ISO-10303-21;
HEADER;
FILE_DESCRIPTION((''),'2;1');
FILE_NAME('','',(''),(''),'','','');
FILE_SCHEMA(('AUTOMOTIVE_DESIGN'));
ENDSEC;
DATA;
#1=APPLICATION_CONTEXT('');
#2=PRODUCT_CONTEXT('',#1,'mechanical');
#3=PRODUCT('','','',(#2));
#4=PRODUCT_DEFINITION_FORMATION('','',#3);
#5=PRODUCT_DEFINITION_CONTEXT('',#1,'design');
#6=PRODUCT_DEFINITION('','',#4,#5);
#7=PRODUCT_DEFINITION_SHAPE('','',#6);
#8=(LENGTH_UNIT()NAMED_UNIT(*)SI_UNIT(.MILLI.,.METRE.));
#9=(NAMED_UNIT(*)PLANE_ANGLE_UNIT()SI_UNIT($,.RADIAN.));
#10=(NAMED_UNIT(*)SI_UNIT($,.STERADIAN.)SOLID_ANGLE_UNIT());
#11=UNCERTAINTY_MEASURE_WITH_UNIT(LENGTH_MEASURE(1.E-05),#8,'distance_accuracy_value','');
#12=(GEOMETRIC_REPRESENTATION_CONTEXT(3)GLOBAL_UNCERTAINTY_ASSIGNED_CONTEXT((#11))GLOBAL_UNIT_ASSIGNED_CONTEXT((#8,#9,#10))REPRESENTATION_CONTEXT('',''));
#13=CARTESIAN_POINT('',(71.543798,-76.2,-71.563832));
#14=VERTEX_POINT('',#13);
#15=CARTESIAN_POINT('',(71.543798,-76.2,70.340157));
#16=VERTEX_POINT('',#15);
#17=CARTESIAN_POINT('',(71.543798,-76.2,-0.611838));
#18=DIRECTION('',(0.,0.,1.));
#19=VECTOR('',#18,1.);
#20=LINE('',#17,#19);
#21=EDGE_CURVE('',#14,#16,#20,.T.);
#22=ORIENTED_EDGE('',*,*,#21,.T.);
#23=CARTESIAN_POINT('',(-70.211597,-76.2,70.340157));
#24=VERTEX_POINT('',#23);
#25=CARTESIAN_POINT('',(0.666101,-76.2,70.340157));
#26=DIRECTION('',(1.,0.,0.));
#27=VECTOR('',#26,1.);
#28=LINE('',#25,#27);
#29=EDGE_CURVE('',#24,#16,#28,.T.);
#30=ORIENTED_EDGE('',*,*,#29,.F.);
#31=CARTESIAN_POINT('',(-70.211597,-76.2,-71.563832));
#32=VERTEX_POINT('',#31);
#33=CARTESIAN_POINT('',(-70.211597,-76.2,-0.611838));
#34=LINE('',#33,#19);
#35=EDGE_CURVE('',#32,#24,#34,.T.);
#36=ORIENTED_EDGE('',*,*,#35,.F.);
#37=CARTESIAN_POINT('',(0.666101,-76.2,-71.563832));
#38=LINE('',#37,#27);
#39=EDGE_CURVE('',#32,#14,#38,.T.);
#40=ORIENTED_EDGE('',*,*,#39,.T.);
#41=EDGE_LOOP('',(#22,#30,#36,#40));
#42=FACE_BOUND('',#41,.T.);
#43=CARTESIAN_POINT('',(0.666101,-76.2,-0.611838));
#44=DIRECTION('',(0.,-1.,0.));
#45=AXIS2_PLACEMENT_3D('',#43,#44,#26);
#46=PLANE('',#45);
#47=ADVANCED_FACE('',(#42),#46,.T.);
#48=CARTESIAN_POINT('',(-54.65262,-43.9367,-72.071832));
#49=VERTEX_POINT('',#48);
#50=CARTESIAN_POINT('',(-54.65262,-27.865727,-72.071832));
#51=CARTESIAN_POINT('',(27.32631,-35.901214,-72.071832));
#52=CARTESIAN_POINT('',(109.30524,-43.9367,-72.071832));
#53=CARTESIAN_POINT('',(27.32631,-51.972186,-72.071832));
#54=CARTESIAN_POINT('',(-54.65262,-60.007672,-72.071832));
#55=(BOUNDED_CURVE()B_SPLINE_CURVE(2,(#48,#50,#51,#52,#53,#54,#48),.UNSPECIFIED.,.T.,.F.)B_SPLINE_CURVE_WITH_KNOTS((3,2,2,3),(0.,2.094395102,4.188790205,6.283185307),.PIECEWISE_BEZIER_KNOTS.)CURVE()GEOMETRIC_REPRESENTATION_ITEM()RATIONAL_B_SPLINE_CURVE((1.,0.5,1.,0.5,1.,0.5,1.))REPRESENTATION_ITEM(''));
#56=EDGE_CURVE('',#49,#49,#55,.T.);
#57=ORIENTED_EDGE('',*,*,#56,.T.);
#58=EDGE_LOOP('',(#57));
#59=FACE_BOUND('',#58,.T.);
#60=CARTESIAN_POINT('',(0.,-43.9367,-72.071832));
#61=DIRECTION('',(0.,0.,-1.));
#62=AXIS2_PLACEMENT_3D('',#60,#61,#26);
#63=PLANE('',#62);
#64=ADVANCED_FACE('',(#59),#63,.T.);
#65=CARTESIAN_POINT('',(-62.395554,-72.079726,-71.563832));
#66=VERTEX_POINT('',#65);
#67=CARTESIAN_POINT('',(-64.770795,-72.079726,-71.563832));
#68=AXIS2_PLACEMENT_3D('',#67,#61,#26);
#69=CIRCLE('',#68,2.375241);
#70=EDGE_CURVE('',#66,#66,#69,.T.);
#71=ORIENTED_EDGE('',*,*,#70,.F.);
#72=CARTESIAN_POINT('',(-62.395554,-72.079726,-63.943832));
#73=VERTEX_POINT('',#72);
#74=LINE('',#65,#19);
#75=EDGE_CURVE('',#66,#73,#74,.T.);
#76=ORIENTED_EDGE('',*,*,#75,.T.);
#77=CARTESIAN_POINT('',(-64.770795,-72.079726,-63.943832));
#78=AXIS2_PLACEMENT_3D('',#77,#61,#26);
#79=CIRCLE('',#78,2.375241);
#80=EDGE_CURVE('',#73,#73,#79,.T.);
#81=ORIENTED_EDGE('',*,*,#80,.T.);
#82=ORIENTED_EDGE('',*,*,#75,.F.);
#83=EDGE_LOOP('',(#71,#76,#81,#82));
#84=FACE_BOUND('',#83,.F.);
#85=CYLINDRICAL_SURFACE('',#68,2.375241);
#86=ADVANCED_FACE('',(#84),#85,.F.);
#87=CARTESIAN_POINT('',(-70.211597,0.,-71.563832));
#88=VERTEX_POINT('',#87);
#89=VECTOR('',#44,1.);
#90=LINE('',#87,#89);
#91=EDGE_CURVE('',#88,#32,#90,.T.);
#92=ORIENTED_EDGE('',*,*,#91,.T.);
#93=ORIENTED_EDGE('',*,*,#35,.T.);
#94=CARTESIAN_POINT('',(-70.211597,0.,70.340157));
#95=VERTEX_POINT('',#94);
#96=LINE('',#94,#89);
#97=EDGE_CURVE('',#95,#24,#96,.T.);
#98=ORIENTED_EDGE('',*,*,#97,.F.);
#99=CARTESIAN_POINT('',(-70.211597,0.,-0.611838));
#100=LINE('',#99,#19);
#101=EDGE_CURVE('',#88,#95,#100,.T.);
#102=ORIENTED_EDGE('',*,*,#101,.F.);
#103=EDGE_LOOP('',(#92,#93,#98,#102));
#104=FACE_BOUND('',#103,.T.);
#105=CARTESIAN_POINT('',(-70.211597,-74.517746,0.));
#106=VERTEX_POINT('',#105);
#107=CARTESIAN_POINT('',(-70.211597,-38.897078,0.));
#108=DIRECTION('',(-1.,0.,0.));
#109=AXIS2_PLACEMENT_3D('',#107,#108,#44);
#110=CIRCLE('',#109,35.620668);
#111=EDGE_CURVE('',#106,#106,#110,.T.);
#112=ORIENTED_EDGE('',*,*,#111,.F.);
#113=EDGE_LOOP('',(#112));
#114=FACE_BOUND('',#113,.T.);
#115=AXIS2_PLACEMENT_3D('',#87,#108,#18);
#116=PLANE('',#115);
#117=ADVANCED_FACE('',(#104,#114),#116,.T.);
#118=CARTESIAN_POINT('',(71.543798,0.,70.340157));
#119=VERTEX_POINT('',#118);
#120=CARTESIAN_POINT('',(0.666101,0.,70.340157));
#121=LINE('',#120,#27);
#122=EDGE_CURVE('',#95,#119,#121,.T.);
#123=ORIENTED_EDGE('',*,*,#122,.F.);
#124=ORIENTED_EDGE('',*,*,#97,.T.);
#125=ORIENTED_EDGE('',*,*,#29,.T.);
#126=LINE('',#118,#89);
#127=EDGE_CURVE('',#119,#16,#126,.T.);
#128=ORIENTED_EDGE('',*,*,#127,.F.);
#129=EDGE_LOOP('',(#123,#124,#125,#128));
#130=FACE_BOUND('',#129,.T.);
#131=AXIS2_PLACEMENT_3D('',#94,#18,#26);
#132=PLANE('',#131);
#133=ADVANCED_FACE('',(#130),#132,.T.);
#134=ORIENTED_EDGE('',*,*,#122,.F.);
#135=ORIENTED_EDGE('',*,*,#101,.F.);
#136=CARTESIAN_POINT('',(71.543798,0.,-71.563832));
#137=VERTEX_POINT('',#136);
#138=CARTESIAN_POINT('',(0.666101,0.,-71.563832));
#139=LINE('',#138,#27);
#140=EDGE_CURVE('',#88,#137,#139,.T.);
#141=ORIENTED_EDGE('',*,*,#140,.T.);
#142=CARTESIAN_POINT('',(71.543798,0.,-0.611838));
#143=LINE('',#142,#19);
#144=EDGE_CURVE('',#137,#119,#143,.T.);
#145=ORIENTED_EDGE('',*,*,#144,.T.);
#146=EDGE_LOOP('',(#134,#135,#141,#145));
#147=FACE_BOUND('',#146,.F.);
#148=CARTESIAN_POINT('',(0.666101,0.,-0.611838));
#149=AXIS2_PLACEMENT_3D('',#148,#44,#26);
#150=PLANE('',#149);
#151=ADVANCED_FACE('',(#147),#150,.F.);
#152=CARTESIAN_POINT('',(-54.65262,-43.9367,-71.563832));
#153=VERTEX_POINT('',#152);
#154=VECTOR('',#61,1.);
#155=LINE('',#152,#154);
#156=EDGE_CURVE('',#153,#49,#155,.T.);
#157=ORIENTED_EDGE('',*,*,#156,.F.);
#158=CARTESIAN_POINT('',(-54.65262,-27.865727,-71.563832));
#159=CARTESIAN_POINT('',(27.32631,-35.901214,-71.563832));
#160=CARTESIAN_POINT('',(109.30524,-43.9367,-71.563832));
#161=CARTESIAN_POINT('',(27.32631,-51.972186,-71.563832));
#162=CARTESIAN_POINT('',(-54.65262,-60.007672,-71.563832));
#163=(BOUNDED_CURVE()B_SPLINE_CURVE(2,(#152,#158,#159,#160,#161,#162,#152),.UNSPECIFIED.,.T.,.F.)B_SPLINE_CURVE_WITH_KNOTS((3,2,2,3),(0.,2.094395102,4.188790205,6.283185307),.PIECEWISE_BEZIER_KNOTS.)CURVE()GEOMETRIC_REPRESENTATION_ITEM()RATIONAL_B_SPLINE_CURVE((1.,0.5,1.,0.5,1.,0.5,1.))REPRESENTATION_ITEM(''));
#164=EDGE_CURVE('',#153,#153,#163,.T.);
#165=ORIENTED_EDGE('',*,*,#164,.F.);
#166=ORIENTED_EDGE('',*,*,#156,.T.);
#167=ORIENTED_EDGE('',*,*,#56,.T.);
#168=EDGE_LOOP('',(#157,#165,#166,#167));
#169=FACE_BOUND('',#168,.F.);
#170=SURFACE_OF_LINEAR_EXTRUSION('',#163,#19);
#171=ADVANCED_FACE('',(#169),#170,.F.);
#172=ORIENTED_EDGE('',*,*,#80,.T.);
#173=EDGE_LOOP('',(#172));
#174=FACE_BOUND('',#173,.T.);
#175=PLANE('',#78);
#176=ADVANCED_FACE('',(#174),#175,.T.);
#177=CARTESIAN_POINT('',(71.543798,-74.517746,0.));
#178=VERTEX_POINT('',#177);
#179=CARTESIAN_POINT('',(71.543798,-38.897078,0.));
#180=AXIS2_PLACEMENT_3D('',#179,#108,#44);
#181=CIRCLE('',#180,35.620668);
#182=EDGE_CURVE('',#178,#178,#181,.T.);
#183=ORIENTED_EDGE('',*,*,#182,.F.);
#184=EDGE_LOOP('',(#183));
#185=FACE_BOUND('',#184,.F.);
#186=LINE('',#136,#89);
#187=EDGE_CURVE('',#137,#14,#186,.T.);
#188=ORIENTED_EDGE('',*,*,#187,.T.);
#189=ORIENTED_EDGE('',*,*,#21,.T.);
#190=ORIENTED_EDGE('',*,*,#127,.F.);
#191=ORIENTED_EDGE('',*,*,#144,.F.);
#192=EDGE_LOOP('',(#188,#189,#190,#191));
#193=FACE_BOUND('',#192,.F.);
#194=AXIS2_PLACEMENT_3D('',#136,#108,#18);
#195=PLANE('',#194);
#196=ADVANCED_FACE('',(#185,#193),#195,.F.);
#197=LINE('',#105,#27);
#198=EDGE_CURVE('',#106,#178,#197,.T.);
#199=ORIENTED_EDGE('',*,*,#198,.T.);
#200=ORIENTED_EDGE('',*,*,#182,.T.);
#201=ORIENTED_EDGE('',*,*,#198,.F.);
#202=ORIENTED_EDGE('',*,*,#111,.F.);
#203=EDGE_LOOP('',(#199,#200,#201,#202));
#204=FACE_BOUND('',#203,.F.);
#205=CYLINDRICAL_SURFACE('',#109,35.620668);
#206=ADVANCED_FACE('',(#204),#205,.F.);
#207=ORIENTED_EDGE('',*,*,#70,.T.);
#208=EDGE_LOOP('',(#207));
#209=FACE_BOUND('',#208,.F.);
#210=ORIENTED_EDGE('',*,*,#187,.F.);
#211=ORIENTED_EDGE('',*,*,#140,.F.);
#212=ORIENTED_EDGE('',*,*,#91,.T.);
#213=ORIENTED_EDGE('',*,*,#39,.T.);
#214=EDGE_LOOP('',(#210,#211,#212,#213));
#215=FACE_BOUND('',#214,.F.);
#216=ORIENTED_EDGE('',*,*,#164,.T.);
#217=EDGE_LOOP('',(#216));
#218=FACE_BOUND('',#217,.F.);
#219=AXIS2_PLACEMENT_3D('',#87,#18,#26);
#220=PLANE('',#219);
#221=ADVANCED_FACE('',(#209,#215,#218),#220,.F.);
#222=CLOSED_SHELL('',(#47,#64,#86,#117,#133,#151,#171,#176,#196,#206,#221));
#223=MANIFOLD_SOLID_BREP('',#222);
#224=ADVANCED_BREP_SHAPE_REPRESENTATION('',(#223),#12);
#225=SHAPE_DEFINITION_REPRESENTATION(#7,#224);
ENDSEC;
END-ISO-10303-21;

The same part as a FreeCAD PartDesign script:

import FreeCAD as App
import Part
import Sketcher
Q = App.Units.Quantity


def add_polygon(sketch, points):
    """Adds a closed chain of lines whose ends are joined by coincident constraints."""
    first, n = sketch.GeometryCount, len(points)
    for a, b in zip(points, points[1:] + points[:1]):
        sketch.addGeometry(Part.LineSegment(App.Vector(*a, 0), App.Vector(*b, 0)), False)
    for i in range(n):
        sketch.addConstraint(Sketcher.Constraint("Coincident", first + i, 2, first + (i + 1) % n, 1))

doc = App.newDocument("Part")
body = doc.addObject("PartDesign::Body", "Body")

sketch1 = body.newObject("Sketcher::SketchObject", "Sketch")
sketch1.AttachmentSupport = (doc.getObject("XZ_Plane"), [""])
sketch1.MapMode = "FlatFace"
add_polygon(sketch1, [(-70, 70), (-70, -72), (72, -72), (72, 70)])
sketch1.addConstraint([
    Sketcher.Constraint("Vertical", 0),
    Sketcher.Constraint("Horizontal", 1),
    Sketcher.Constraint("Vertical", 2),
    Sketcher.Constraint("Horizontal", 3),
    Sketcher.Constraint("DistanceY", 0, 2, 0, 1, 141.903989),
    Sketcher.Constraint("DistanceX", 1, 1, 1, 2, 141.755395),
    Sketcher.Constraint("DistanceX", 0, 2, -1, 1, 70.211597),
    Sketcher.Constraint("DistanceY", 0, 2, -1, 1, 71.563832),
])
pad1 = body.newObject("PartDesign::Pad", "Pad")
pad1.Profile = sketch1
pad1.Length = Q("3 in")

sketch2 = body.newObject("Sketcher::SketchObject", "Sketch001")
sketch2.AttachmentSupport = (doc.getObject("YZ_Plane"), [""])
sketch2.MapMode = "FlatFace"
sketch2.AttachmentOffset = App.Placement(App.Vector(0, 0, -70.211597), App.Rotation())
sketch2.addGeometry(Part.Circle(App.Vector(-39, 0, 0), App.Vector(0, 0, 1), 36), False)
sketch2.addConstraint([
    Sketcher.Constraint("PointOnObject", 0, 3, -1),
    Sketcher.Constraint("Diameter", 0, 71.241335),
    Sketcher.Constraint("DistanceX", 0, 3, -1, 1, 38.897078),
])
pocket1 = body.newObject("PartDesign::Pocket", "Pocket")
pocket1.Profile = sketch2
pocket1.Length = Q("6 in")
pocket1.Reversed = True

sketch3 = body.newObject("Sketcher::SketchObject", "Sketch002")
sketch3.AttachmentSupport = (doc.getObject("XY_Plane"), [""])
sketch3.MapMode = "FlatFace"
sketch3.AttachmentOffset = App.Placement(App.Vector(0, 0, -71.563832), App.Rotation())
sketch3.addGeometry(Part.BSplineCurve([App.Vector(-54.65262, -43.9367, 0), App.Vector(-54.65262, -27.865727, 0), App.Vector(27.32631, -35.901214, 0), App.Vector(109.30524, -43.9367, 0), App.Vector(27.32631, -51.972186, 0), App.Vector(-54.65262, -60.007672, 0), App.Vector(-54.65262, -43.9367, 0)], [3, 2, 2, 3], [0, 2.094395102, 4.188790205, 6.283185307], False, 2, [1, 0.5, 1, 0.5, 1, 0.5, 1], False), False)
sketch3.addConstraint(Sketcher.Constraint("Block", 0))
pad2 = body.newObject("PartDesign::Pad", "Pad001")
pad2.Profile = sketch3
pad2.Length = Q("0.02 in")
pad2.Reversed = True

sketch4 = body.newObject("Sketcher::SketchObject", "Sketch003")
sketch4.AttachmentSupport = (doc.getObject("XY_Plane"), [""])
sketch4.MapMode = "FlatFace"
sketch4.AttachmentOffset = App.Placement(App.Vector(0, 0, -71.563832), App.Rotation())
sketch4.addGeometry(Part.Circle(App.Vector(-64.8, -72.1, 0), App.Vector(0, 0, 1), 2.4), False)
sketch4.addConstraint([
    Sketcher.Constraint("Diameter", 0, 4.750483),
    Sketcher.Constraint("DistanceX", 0, 3, -1, 1, 64.770795),
    Sketcher.Constraint("DistanceY", 0, 3, -1, 1, 72.079726),
])
pocket2 = body.newObject("PartDesign::Pocket", "Pocket001")
pocket2.Profile = sketch4
pocket2.Length = Q("0.3 in")
pocket2.Reversed = True

doc.recompute()
